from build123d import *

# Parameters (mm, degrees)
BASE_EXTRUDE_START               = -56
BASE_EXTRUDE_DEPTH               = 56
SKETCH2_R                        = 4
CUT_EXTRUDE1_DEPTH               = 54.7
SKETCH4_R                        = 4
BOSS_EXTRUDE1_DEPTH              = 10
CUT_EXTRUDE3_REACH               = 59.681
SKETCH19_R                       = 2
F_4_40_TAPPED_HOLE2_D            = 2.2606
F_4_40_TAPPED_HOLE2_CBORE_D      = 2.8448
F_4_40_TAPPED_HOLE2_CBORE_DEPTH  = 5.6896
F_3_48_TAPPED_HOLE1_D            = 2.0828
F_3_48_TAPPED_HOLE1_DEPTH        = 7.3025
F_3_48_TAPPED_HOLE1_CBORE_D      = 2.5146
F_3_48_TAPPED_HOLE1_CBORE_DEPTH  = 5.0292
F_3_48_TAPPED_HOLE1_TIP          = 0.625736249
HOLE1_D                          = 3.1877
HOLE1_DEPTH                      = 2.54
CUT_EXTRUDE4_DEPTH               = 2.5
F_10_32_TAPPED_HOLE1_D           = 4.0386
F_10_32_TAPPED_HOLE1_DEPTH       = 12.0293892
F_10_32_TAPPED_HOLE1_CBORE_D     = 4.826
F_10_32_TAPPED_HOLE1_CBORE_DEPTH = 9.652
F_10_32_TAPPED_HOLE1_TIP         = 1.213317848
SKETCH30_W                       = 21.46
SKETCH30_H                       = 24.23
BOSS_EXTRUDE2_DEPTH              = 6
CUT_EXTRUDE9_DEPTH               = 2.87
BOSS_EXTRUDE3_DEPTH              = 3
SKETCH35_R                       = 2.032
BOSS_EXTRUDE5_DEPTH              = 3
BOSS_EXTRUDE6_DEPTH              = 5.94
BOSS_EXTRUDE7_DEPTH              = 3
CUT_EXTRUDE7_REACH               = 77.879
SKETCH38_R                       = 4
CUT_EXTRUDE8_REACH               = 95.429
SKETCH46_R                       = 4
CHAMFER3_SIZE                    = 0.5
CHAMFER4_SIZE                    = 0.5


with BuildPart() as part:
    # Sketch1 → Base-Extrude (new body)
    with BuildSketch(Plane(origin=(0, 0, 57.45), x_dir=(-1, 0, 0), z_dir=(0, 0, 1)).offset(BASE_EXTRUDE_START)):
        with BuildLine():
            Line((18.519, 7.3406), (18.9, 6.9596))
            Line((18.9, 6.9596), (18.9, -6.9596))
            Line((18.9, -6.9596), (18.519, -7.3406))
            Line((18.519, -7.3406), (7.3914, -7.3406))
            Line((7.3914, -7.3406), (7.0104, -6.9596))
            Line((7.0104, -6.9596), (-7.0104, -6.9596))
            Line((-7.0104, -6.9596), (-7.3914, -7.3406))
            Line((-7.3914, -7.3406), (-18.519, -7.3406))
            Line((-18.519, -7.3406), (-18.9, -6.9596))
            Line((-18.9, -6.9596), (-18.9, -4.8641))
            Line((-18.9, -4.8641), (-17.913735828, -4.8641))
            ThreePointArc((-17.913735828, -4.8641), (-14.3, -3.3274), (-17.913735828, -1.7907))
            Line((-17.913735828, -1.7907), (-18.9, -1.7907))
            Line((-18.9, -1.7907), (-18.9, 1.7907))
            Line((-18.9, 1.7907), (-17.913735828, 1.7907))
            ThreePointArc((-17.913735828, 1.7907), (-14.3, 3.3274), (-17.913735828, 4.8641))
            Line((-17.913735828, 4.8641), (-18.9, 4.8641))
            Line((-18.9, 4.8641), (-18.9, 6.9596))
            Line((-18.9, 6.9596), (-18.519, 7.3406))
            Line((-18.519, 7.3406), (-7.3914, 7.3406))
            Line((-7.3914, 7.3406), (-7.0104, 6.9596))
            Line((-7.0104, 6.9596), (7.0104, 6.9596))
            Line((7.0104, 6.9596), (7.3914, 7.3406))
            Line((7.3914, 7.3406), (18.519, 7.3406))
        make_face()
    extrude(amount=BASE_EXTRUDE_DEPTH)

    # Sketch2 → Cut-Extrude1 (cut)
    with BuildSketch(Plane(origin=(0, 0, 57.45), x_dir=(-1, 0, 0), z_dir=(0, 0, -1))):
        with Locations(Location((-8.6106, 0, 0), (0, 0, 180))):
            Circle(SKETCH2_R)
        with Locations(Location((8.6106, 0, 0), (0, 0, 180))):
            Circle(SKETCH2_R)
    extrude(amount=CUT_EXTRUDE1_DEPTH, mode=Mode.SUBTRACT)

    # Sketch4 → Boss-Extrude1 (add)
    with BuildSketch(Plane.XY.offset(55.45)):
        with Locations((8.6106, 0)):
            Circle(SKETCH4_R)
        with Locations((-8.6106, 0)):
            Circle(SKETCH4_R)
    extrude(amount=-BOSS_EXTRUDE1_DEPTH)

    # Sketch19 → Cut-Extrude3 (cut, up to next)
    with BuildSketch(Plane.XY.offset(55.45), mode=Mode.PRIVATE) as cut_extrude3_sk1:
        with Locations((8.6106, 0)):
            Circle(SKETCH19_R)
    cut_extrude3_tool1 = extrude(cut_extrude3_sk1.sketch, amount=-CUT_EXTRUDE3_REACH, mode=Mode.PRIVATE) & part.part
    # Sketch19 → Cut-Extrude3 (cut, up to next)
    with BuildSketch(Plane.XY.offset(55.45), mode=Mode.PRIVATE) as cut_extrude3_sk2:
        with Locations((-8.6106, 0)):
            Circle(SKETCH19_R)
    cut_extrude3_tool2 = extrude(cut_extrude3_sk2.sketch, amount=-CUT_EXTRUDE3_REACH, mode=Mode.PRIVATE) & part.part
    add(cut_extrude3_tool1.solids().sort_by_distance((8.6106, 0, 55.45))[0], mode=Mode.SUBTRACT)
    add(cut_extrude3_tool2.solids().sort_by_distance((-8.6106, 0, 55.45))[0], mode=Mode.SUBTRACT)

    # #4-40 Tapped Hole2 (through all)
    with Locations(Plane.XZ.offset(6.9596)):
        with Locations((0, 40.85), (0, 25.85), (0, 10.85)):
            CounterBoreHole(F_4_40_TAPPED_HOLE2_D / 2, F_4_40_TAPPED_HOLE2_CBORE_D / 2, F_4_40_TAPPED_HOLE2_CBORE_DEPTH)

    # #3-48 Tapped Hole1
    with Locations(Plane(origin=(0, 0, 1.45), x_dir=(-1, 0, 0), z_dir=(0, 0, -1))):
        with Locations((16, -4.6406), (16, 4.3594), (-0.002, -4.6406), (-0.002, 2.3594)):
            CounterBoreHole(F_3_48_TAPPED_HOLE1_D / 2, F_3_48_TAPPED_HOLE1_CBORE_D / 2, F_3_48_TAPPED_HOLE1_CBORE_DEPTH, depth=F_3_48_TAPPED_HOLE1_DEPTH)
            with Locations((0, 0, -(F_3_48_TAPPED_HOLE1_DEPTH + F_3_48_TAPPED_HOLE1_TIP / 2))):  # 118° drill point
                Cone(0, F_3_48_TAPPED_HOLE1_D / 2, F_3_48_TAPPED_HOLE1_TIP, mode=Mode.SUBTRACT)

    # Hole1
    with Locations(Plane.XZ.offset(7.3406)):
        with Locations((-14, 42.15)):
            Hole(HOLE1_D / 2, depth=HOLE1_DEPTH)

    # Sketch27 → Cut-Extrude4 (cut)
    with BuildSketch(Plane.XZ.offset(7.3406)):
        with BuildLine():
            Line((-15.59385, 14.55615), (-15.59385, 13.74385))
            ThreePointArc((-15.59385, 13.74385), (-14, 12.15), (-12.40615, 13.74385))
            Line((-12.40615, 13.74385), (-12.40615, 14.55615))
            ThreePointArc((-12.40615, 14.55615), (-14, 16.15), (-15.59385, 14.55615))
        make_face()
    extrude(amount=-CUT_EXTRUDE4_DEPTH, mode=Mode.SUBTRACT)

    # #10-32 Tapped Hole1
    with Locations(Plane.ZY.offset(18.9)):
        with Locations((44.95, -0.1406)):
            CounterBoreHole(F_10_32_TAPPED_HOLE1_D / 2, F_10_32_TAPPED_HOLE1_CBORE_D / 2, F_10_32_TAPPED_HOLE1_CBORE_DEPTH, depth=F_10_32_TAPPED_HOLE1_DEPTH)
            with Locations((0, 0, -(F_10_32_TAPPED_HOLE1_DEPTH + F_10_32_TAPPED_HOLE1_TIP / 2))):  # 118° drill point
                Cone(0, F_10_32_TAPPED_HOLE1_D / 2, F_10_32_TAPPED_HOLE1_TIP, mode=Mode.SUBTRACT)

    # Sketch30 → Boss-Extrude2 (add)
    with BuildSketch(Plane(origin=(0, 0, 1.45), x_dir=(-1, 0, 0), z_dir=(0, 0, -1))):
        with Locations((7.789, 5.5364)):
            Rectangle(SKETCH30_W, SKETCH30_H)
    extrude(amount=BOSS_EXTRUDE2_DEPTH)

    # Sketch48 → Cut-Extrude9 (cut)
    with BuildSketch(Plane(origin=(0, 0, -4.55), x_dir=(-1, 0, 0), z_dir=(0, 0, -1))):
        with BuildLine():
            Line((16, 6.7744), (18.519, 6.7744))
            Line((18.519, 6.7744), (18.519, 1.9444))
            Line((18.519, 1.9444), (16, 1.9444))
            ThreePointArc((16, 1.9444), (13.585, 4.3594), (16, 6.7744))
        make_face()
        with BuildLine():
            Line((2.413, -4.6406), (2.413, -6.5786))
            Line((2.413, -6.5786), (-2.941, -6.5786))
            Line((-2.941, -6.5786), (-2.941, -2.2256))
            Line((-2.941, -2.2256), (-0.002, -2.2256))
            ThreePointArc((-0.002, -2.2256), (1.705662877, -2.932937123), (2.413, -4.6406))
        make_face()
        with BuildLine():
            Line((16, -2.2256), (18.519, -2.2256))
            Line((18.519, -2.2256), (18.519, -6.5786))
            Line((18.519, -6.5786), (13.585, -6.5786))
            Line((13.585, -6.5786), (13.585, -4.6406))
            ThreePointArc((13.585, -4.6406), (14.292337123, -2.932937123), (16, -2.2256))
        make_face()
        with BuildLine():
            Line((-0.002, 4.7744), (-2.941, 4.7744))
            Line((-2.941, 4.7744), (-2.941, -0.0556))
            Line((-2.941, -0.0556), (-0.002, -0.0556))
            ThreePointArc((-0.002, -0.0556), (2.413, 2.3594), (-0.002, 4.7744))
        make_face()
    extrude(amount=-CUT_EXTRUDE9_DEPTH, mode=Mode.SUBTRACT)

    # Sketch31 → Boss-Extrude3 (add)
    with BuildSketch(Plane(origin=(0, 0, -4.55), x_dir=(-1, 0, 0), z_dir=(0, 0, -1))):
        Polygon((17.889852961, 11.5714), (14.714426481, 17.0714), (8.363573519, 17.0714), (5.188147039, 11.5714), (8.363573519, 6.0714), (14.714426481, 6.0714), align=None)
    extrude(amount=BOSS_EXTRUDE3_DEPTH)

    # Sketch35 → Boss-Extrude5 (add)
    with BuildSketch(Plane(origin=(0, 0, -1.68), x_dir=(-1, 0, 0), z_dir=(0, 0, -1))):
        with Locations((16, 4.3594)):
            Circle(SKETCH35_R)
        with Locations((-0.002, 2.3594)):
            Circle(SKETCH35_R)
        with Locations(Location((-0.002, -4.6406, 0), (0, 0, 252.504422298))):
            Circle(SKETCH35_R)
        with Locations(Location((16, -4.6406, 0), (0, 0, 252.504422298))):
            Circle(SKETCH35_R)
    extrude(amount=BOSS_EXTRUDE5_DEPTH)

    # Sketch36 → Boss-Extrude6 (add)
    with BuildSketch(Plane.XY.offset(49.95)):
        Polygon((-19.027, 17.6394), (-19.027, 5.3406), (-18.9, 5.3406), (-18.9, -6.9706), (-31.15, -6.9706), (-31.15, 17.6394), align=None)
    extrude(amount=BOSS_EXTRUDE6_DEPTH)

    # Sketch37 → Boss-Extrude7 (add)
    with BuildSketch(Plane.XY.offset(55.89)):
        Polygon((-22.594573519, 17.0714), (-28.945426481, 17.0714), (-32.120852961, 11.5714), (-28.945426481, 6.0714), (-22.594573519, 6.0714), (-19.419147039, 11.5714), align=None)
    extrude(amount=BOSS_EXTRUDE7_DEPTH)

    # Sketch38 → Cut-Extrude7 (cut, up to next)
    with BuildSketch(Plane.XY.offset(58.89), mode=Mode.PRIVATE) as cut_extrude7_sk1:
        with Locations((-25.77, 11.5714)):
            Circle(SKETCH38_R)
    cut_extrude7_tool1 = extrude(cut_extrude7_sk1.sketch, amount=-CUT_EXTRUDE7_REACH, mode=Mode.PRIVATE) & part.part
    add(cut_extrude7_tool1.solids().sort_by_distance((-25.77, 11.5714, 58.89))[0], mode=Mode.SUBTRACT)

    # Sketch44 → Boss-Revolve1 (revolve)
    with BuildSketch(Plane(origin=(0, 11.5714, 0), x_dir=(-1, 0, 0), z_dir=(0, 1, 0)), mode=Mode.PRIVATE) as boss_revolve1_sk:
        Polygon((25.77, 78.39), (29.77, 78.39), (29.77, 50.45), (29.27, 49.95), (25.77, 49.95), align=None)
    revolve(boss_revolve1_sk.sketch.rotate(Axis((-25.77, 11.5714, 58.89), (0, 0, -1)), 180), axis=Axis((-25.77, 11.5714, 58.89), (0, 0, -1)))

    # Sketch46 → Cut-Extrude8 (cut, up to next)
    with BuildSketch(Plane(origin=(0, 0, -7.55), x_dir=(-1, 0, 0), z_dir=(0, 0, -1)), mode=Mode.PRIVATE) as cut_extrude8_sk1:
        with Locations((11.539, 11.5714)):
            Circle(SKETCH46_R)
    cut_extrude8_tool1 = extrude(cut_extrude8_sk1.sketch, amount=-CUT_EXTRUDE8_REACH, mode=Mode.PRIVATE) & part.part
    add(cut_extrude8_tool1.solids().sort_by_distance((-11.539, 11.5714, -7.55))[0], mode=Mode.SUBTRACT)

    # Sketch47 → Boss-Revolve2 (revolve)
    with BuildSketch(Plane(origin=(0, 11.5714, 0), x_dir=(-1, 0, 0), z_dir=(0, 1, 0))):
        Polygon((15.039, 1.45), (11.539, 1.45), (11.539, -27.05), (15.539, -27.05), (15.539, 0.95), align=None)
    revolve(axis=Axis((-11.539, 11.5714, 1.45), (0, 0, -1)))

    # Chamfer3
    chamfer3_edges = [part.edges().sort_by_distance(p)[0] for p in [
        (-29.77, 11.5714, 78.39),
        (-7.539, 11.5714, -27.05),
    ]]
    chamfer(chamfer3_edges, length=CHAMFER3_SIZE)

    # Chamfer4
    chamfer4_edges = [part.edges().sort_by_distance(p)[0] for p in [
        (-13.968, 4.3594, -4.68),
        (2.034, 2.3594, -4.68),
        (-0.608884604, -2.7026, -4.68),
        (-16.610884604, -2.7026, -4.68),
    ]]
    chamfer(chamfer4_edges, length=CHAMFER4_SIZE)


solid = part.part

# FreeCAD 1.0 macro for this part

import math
import FreeCAD as App
import Part
import Sketcher
Q = App.Units.Quantity


def edges_at(feature, points):
    """Names of the edges that pass closest to the given points."""
    edges = feature.Shape.Edges
    near = lambda p: min(range(len(edges)), key=lambda i: edges[i].distToShape(Part.Vertex(*p))[0])
    return sorted({f"Edge{near(p) + 1}" for p in points})


def add_polygon(sketch, points):
    """Adds a closed chain of lines whose ends are joined by coincident constraints."""
    first, n = sketch.GeometryCount, len(points)
    for a, b in zip(points, points[1:] + points[:1]):
        sketch.addGeometry(Part.LineSegment(App.Vector(*a, 0), App.Vector(*b, 0)), False)
    for i in range(n):
        sketch.addConstraint(Sketcher.Constraint("Coincident", first + i, 2, first + (i + 1) % n, 1))

doc = App.newDocument("Part")
body = doc.addObject("PartDesign::Body", "Body")

sketch1 = body.newObject("Sketcher::SketchObject", "Sketch")
sketch1.AttachmentSupport = (doc.getObject("XY_Plane"), [""])
sketch1.MapMode = "FlatFace"
sketch1.AttachmentOffset = App.Placement(App.Vector(0, 0, 1.45), App.Rotation())
sketch1.addGeometry([
    Part.LineSegment(App.Vector(-18.9, -7, 0), App.Vector(-18.5, -7.3, 0)),
    Part.LineSegment(App.Vector(-18.5, -7.3, 0), App.Vector(-7.4, -7.3, 0)),
    Part.LineSegment(App.Vector(-7.4, -7.3, 0), App.Vector(-7, -7, 0)),
    Part.LineSegment(App.Vector(-7, -7, 0), App.Vector(7, -7, 0)),
    Part.LineSegment(App.Vector(7, -7, 0), App.Vector(7.4, -7.3, 0)),
    Part.LineSegment(App.Vector(7.4, -7.3, 0), App.Vector(18.5, -7.3, 0)),
    Part.LineSegment(App.Vector(18.5, -7.3, 0), App.Vector(18.9, -7, 0)),
    Part.LineSegment(App.Vector(18.9, -7, 0), App.Vector(18.9, -4.9, 0)),
    Part.LineSegment(App.Vector(18.9, -4.9, 0), App.Vector(17.9, -4.9, 0)),
    Part.ArcOfCircle(Part.Circle(App.Vector(16.4, -3.3, 0), App.Vector(0, 0, 1), 2.1), math.radians(46), math.radians(314)),
    Part.LineSegment(App.Vector(17.9, -1.8, 0), App.Vector(18.9, -1.8, 0)),
    Part.LineSegment(App.Vector(18.9, -1.8, 0), App.Vector(18.9, 1.8, 0)),
    Part.LineSegment(App.Vector(18.9, 1.8, 0), App.Vector(17.9, 1.8, 0)),
    Part.ArcOfCircle(Part.Circle(App.Vector(16.4, 3.3, 0), App.Vector(0, 0, 1), 2.1), math.radians(46), math.radians(314)),
    Part.LineSegment(App.Vector(17.9, 4.9, 0), App.Vector(18.9, 4.9, 0)),
    Part.LineSegment(App.Vector(18.9, 4.9, 0), App.Vector(18.9, 7, 0)),
    Part.LineSegment(App.Vector(18.9, 7, 0), App.Vector(18.5, 7.3, 0)),
    Part.LineSegment(App.Vector(18.5, 7.3, 0), App.Vector(7.4, 7.3, 0)),
    Part.LineSegment(App.Vector(7.4, 7.3, 0), App.Vector(7, 7, 0)),
    Part.LineSegment(App.Vector(7, 7, 0), App.Vector(-7, 7, 0)),
    Part.LineSegment(App.Vector(-7, 7, 0), App.Vector(-7.4, 7.3, 0)),
    Part.LineSegment(App.Vector(-7.4, 7.3, 0), App.Vector(-18.5, 7.3, 0)),
    Part.LineSegment(App.Vector(-18.5, 7.3, 0), App.Vector(-18.9, 7, 0)),
    Part.LineSegment(App.Vector(-18.9, 7, 0), App.Vector(-18.9, -7, 0)),
], False)
sketch1.addConstraint([
    Sketcher.Constraint("Coincident", 0, 2, 1, 1),
    Sketcher.Constraint("Coincident", 1, 2, 2, 1),
    Sketcher.Constraint("Coincident", 2, 2, 3, 1),
    Sketcher.Constraint("Coincident", 3, 2, 4, 1),
    Sketcher.Constraint("Coincident", 4, 2, 5, 1),
    Sketcher.Constraint("Coincident", 5, 2, 6, 1),
    Sketcher.Constraint("Coincident", 6, 2, 7, 1),
    Sketcher.Constraint("Coincident", 7, 2, 8, 1),
    Sketcher.Constraint("Coincident", 8, 2, 9, 2),
    Sketcher.Constraint("Coincident", 9, 1, 10, 1),
    Sketcher.Constraint("Coincident", 10, 2, 11, 1),
    Sketcher.Constraint("Coincident", 11, 2, 12, 1),
    Sketcher.Constraint("Coincident", 12, 2, 13, 2),
    Sketcher.Constraint("Coincident", 13, 1, 14, 1),
    Sketcher.Constraint("Coincident", 14, 2, 15, 1),
    Sketcher.Constraint("Coincident", 15, 2, 16, 1),
    Sketcher.Constraint("Coincident", 16, 2, 17, 1),
    Sketcher.Constraint("Coincident", 17, 2, 18, 1),
    Sketcher.Constraint("Coincident", 18, 2, 19, 1),
    Sketcher.Constraint("Coincident", 19, 2, 20, 1),
    Sketcher.Constraint("Coincident", 20, 2, 21, 1),
    Sketcher.Constraint("Coincident", 21, 2, 22, 1),
    Sketcher.Constraint("Coincident", 22, 2, 23, 1),
    Sketcher.Constraint("Coincident", 23, 2, 0, 1),
    Sketcher.Constraint("Horizontal", 1),
    Sketcher.Constraint("Horizontal", 3),
    Sketcher.Constraint("Horizontal", 5),
    Sketcher.Constraint("Vertical", 7),
    Sketcher.Constraint("Horizontal", 8),
    Sketcher.Constraint("Horizontal", 10),
    Sketcher.Constraint("Vertical", 11),
    Sketcher.Constraint("Horizontal", 12),
    Sketcher.Constraint("Horizontal", 14),
    Sketcher.Constraint("Vertical", 15),
    Sketcher.Constraint("Horizontal", 17),
    Sketcher.Constraint("Horizontal", 19),
    Sketcher.Constraint("Horizontal", 21),
    Sketcher.Constraint("Vertical", 23),
    Sketcher.Constraint("Equal", 9, 13),
    Sketcher.Constraint("Symmetric", 0, 2, 16, 2, -1, 1),
    Sketcher.Constraint("Symmetric", 2, 2, 18, 2, -1, 1),
    Sketcher.Constraint("Symmetric", 4, 2, 20, 2, -1, 1),
    Sketcher.Constraint("Symmetric", 6, 2, 22, 2, -1, 1),
    Sketcher.Constraint("Symmetric", 15, 2, 23, 2, -1, 1),
    Sketcher.Constraint("Symmetric", 1, 2, 4, 2, -2),
    Sketcher.Constraint("Symmetric", 9, 3, 13, 3, -1),
    Sketcher.Constraint("Perpendicular", 0, 2),
    Sketcher.Constraint("Perpendicular", 2, 4),
    Sketcher.Constraint("Perpendicular", 4, 6),
    Sketcher.Constraint("Perpendicular", 16, 18),
    Sketcher.Constraint("Perpendicular", 18, 20),
    Sketcher.Constraint("Perpendicular", 20, 22),
    Sketcher.Constraint("Horizontal", 3, 2, 6, 2),
    Sketcher.Constraint("Horizontal", 15, 2, 18, 2),
    Sketcher.Constraint("Vertical", 8, 2, 9, 1),
    Sketcher.Constraint("Vertical", 7, 2, 10, 2),
    Sketcher.Constraint("Vertical", 9, 1, 12, 2),
    Sketcher.Constraint("Vertical", 12, 2, 13, 1),
    Sketcher.Constraint("Vertical", 5, 2, 16, 2),
    Sketcher.Constraint("DistanceX", -1, 1, 6, 2, 18.9),
    Sketcher.Constraint("Radius", 9, 2.1336),
    Sketcher.Constraint("DistanceX", 1, 1, 1, 2, 11.1276),
    Sketcher.Constraint("DistanceX", 3, 1, 3, 2, 14.0208),
    Sketcher.Constraint("DistanceY", 7, 1, 7, 2, 2.0955),
    Sketcher.Constraint("DistanceY", 11, 1, 11, 2, 3.5814),
    Sketcher.Constraint("DistanceY", 23, 2, 23, 1, 13.9192),
    Sketcher.Constraint("DistanceX", 1, 2, 9, 3, 23.825),
])
pad1 = body.newObject("PartDesign::Pad", "Pad")
pad1.Profile = sketch1
pad1.Length = 56

sketch2 = body.newObject("Sketcher::SketchObject", "Sketch001")
sketch2.AttachmentSupport = (doc.getObject("XY_Plane"), [""])
sketch2.MapMode = "FlatFace"
sketch2.AttachmentOffset = App.Placement(App.Vector(0, 0, 57.45), App.Rotation())
sketch2.addGeometry([
    Part.Circle(App.Vector(8.6, 0, 0), App.Vector(0, 0, 1), 4),
    Part.Circle(App.Vector(-8.6, 0, 0), App.Vector(0, 0, 1), 4),
], False)
sketch2.addConstraint([
    Sketcher.Constraint("Equal", 0, 1),
    Sketcher.Constraint("Symmetric", 0, 3, 1, 3, -1, 1),
    Sketcher.Constraint("PointOnObject", 0, 3, -1),
    Sketcher.Constraint("Diameter", 0, 8.0),
    Sketcher.Constraint("DistanceX", -1, 1, 0, 3, 8.6106),
])
pocket1 = body.newObject("PartDesign::Pocket", "Pocket")
pocket1.Profile = sketch2
pocket1.Length = 54.7

sketch3 = body.newObject("Sketcher::SketchObject", "Sketch002")
sketch3.AttachmentSupport = (doc.getObject("XY_Plane"), [""])
sketch3.MapMode = "FlatFace"
sketch3.AttachmentOffset = App.Placement(App.Vector(0, 0, 55.45), App.Rotation())
sketch3.addGeometry([
    Part.Circle(App.Vector(8.6, 0, 0), App.Vector(0, 0, 1), 4),
    Part.Circle(App.Vector(-8.6, 0, 0), App.Vector(0, 0, 1), 4),
], False)
sketch3.addConstraint([
    Sketcher.Constraint("Equal", 0, 1),
    Sketcher.Constraint("Symmetric", 0, 3, 1, 3, -1, 1),
    Sketcher.Constraint("PointOnObject", 0, 3, -1),
    Sketcher.Constraint("Diameter", 0, 8.0),
    Sketcher.Constraint("DistanceX", -1, 1, 0, 3, 8.6106),
])
pad2 = body.newObject("PartDesign::Pad", "Pad001")
pad2.Profile = sketch3
pad2.Length = 10
pad2.Reversed = True

sketch4 = body.newObject("Sketcher::SketchObject", "Sketch003")
sketch4.AttachmentSupport = (doc.getObject("XY_Plane"), [""])
sketch4.MapMode = "FlatFace"
sketch4.AttachmentOffset = App.Placement(App.Vector(0, 0, 55.45), App.Rotation())
sketch4.addGeometry(Part.Circle(App.Vector(8.6, 0, 0), App.Vector(0, 0, 1), 2), False)
sketch4.addConstraint([
    Sketcher.Constraint("PointOnObject", 0, 3, -1),
    Sketcher.Constraint("Diameter", 0, 4.0),
    Sketcher.Constraint("DistanceX", -1, 1, 0, 3, 8.6106),
])
pocket2 = body.newObject("PartDesign::Pocket", "Pocket001")
pocket2.Profile = sketch4
pocket2.Type = "UpToFirst"

sketch5 = body.newObject("Sketcher::SketchObject", "Sketch004")
sketch5.AttachmentSupport = (doc.getObject("XY_Plane"), [""])
sketch5.MapMode = "FlatFace"
sketch5.AttachmentOffset = App.Placement(App.Vector(0, 0, 55.45), App.Rotation())
sketch5.addGeometry(Part.Circle(App.Vector(-8.6, 0, 0), App.Vector(0, 0, 1), 2), False)
sketch5.addConstraint([
    Sketcher.Constraint("PointOnObject", 0, 3, -1),
    Sketcher.Constraint("Diameter", 0, 4.0),
    Sketcher.Constraint("DistanceX", 0, 3, -1, 1, 8.6106),
])
pocket3 = body.newObject("PartDesign::Pocket", "Pocket002")
pocket3.Profile = sketch5
pocket3.Type = "UpToFirst"

sketch6 = body.newObject("Sketcher::SketchObject", "Sketch005")
sketch6.AttachmentSupport = (doc.getObject("XZ_Plane"), [""])
sketch6.MapMode = "FlatFace"
sketch6.AttachmentOffset = App.Placement(App.Vector(0, 0, 6.9596), App.Rotation())
sketch6.addGeometry([
    Part.Circle(App.Vector(0, 40.9, 0), App.Vector(0, 0, 1), 1.1),
    Part.Circle(App.Vector(0, 25.9, 0), App.Vector(0, 0, 1), 1.1),
    Part.Circle(App.Vector(0, 10.8, 0), App.Vector(0, 0, 1), 1.1),
], False)
sketch6.addConstraint([
    Sketcher.Constraint("Equal", 0, 1),
    Sketcher.Constraint("Equal", 1, 2),
    Sketcher.Constraint("PointOnObject", 0, 3, -2),
    Sketcher.Constraint("PointOnObject", 1, 3, -2),
    Sketcher.Constraint("PointOnObject", 2, 3, -2),
    Sketcher.Constraint("DistanceY", 1, 3, 0, 3, 15.0),
    Sketcher.Constraint("DistanceY", 2, 3, 1, 3, 15.0),
    Sketcher.Constraint("Diameter", 0, 2.2606),
    Sketcher.Constraint("DistanceY", -1, 1, 0, 3, 40.85),
])
doc.recompute()
hole = body.newObject("PartDesign::Hole", "Hole")
hole.Profile = sketch6
hole.ThreadType = "None"
hole.Diameter = 2.2606
hole.DepthType = "ThroughAll"
hole.HoleCutType = "Counterbore"
hole.HoleCutDiameter = 2.8448
hole.HoleCutDepth = 5.6896

sketch7 = body.newObject("Sketcher::SketchObject", "Sketch006")
sketch7.AttachmentSupport = (doc.getObject("XY_Plane"), [""])
sketch7.MapMode = "FlatFace"
sketch7.AttachmentOffset = App.Placement(App.Vector(0, 0, 1.45), App.Rotation())
sketch7.addGeometry([
    Part.Circle(App.Vector(-16, -4.6, 0), App.Vector(0, 0, 1), 1),
    Part.Circle(App.Vector(-16, 4.4, 0), App.Vector(0, 0, 1), 1),
    Part.Circle(App.Vector(0, -4.6, 0), App.Vector(0, 0, 1), 1),
    Part.Circle(App.Vector(0, 2.4, 0), App.Vector(0, 0, 1), 1),
], False)
sketch7.addConstraint([
    Sketcher.Constraint("Equal", 0, 1),
    Sketcher.Constraint("Equal", 1, 2),
    Sketcher.Constraint("Equal", 2, 3),
    Sketcher.Constraint("Horizontal", 0, 3, 2, 3),
    Sketcher.Constraint("Vertical", 0, 3, 1, 3),
    Sketcher.Constraint("Vertical", 2, 3, 3, 3),
    Sketcher.Constraint("DistanceX", 0, 3, -1, 1, 16.0),
    Sketcher.Constraint("DistanceY", 0, 3, 1, 3, 9.0),
    Sketcher.Constraint("DistanceY", 2, 3, 3, 3, 7.0),
    Sketcher.Constraint("Diameter", 0, 2.0828),
    Sketcher.Constraint("DistanceX", -1, 1, 2, 3, 0.002),
    Sketcher.Constraint("DistanceY", 0, 3, -1, 1, 4.6406),
])
doc.recompute()
hole2 = body.newObject("PartDesign::Hole", "Hole001")
hole2.Profile = sketch7
hole2.ThreadType = "None"
hole2.Diameter = 2.0828
hole2.DepthType = "Dimension"
hole2.Depth = 7.3025
hole2.DrillPoint = "Angled"
hole2.DrillPointAngle = 118
hole2.HoleCutType = "Counterbore"
hole2.HoleCutDiameter = 2.5146
hole2.HoleCutDepth = 5.0292
hole2.Reversed = True

sketch8 = body.newObject("Sketcher::SketchObject", "Sketch007")
sketch8.AttachmentSupport = (doc.getObject("XZ_Plane"), [""])
sketch8.MapMode = "FlatFace"
sketch8.AttachmentOffset = App.Placement(App.Vector(0, 0, 7.3406), App.Rotation())
sketch8.addGeometry(Part.Circle(App.Vector(-14, 42.1, 0), App.Vector(0, 0, 1), 1.6), False)
sketch8.addConstraint([
    Sketcher.Constraint("DistanceX", 0, 3, -1, 1, 14.0),
    Sketcher.Constraint("Diameter", 0, 3.1877),
    Sketcher.Constraint("DistanceY", -1, 1, 0, 3, 42.15),
])
doc.recompute()
hole3 = body.newObject("PartDesign::Hole", "Hole002")
hole3.Profile = sketch8
hole3.ThreadType = "None"
hole3.Diameter = 3.1877
hole3.DepthType = "Dimension"
hole3.Depth = 2.54
hole3.DrillPoint = "Flat"

sketch9 = body.newObject("Sketcher::SketchObject", "Sketch008")
sketch9.AttachmentSupport = (doc.getObject("XZ_Plane"), [""])
sketch9.MapMode = "FlatFace"
sketch9.AttachmentOffset = App.Placement(App.Vector(0, 0, 7.3406), App.Rotation())
sketch9.addGeometry([
    Part.LineSegment(App.Vector(-15.6, 14.6, 0), App.Vector(-15.6, 13.7, 0)),
    Part.ArcOfCircle(Part.Circle(App.Vector(-14, 13.7, 0), App.Vector(0, 0, 1), 1.6), math.radians(180), math.radians(360)),
    Part.LineSegment(App.Vector(-12.4, 13.7, 0), App.Vector(-12.4, 14.6, 0)),
    Part.ArcOfCircle(Part.Circle(App.Vector(-14, 14.6, 0), App.Vector(0, 0, 1), 1.6), math.radians(0), math.radians(180)),
], False)
sketch9.addConstraint([
    Sketcher.Constraint("Tangent", 0, 2, 1, 1),
    Sketcher.Constraint("Tangent", 1, 2, 2, 1),
    Sketcher.Constraint("Tangent", 2, 2, 3, 1),
    Sketcher.Constraint("Tangent", 3, 2, 0, 1),
    Sketcher.Constraint("Vertical", 0),
    Sketcher.Constraint("Vertical", 2),
    Sketcher.Constraint("DistanceX", 1, 3, -1, 1, 14.0),
    Sketcher.Constraint("Radius", 1, 1.59385),
    Sketcher.Constraint("DistanceY", 0, 2, 0, 1, 0.8123),
    Sketcher.Constraint("DistanceY", -1, 1, 1, 3, 13.74385),
])
pocket4 = body.newObject("PartDesign::Pocket", "Pocket003")
pocket4.Profile = sketch9
pocket4.Length = 2.5

sketch10 = body.newObject("Sketcher::SketchObject", "Sketch009")
sketch10.AttachmentSupport = (doc.getObject("YZ_Plane"), [""])
sketch10.MapMode = "FlatFace"
sketch10.AttachmentOffset = App.Placement(App.Vector(0, 0, -18.9), App.Rotation())
sketch10.addGeometry(Part.Circle(App.Vector(-0.1, 45, 0), App.Vector(0, 0, 1), 2), False)
sketch10.addConstraint([
    Sketcher.Constraint("Diameter", 0, 4.0386),
    Sketcher.Constraint("DistanceY", -1, 1, 0, 3, 44.95),
    Sketcher.Constraint("DistanceX", 0, 3, -1, 1, 0.1406),
])
doc.recompute()
hole4 = body.newObject("PartDesign::Hole", "Hole003")
hole4.Profile = sketch10
hole4.ThreadType = "None"
hole4.Diameter = 4.0386
hole4.DepthType = "Dimension"
hole4.Depth = 12.029389
hole4.DrillPoint = "Angled"
hole4.DrillPointAngle = 118
hole4.HoleCutType = "Counterbore"
hole4.HoleCutDiameter = 4.826
hole4.HoleCutDepth = 9.652
hole4.Reversed = True

sketch11 = body.newObject("Sketcher::SketchObject", "Sketch010")
sketch11.AttachmentSupport = (doc.getObject("XY_Plane"), [""])
sketch11.MapMode = "FlatFace"
sketch11.AttachmentOffset = App.Placement(App.Vector(0, 0, 1.45), App.Rotation())
add_polygon(sketch11, [(3, 18), (3, -7), (-19, -7), (-19, 18)])
sketch11.addConstraint([
    Sketcher.Constraint("Vertical", 0),
    Sketcher.Constraint("Horizontal", 1),
    Sketcher.Constraint("Vertical", 2),
    Sketcher.Constraint("Horizontal", 3),
    Sketcher.Constraint("DistanceX", 1, 2, 1, 1, 21.46),
    Sketcher.Constraint("DistanceY", 0, 2, 0, 1, 24.23),
    Sketcher.Constraint("DistanceX", -1, 1, 0, 2, 2.941),
    Sketcher.Constraint("DistanceY", 0, 2, -1, 1, 6.5786),
])
pad3 = body.newObject("PartDesign::Pad", "Pad002")
pad3.Profile = sketch11
pad3.Length = 6
pad3.Reversed = True

sketch12 = body.newObject("Sketcher::SketchObject", "Sketch011")
sketch12.AttachmentSupport = (doc.getObject("XY_Plane"), [""])
sketch12.MapMode = "FlatFace"
sketch12.AttachmentOffset = App.Placement(App.Vector(0, 0, -4.55), App.Rotation())
sketch12.addGeometry([
    Part.LineSegment(App.Vector(-18.5, 6.8, 0), App.Vector(-16, 6.8, 0)),
    Part.ArcOfCircle(Part.Circle(App.Vector(-16, 4.4, 0), App.Vector(0, 0, 1), 2.4), math.radians(-90), math.radians(90)),
    Part.LineSegment(App.Vector(-16, 1.9, 0), App.Vector(-18.5, 1.9, 0)),
    Part.LineSegment(App.Vector(-18.5, 1.9, 0), App.Vector(-18.5, 6.8, 0)),
    Part.LineSegment(App.Vector(-2.4, -6.6, 0), App.Vector(-2.4, -4.6, 0)),
    Part.ArcOfCircle(Part.Circle(App.Vector(0, -4.6, 0), App.Vector(0, 0, 1), 2.4), math.radians(90), math.radians(180)),
    Part.LineSegment(App.Vector(0, -2.2, 0), App.Vector(2.9, -2.2, 0)),
    Part.LineSegment(App.Vector(2.9, -2.2, 0), App.Vector(2.9, -6.6, 0)),
    Part.LineSegment(App.Vector(2.9, -6.6, 0), App.Vector(-2.4, -6.6, 0)),
    Part.LineSegment(App.Vector(-18.5, -2.2, 0), App.Vector(-16, -2.2, 0)),
    Part.ArcOfCircle(Part.Circle(App.Vector(-16, -4.6, 0), App.Vector(0, 0, 1), 2.4), math.radians(0), math.radians(90)),
    Part.LineSegment(App.Vector(-13.6, -4.6, 0), App.Vector(-13.6, -6.6, 0)),
    Part.LineSegment(App.Vector(-13.6, -6.6, 0), App.Vector(-18.5, -6.6, 0)),
    Part.LineSegment(App.Vector(-18.5, -6.6, 0), App.Vector(-18.5, -2.2, 0)),
    Part.LineSegment(App.Vector(0, 4.8, 0), App.Vector(2.9, 4.8, 0)),
    Part.LineSegment(App.Vector(2.9, 4.8, 0), App.Vector(2.9, -0.1, 0)),
    Part.LineSegment(App.Vector(2.9, -0.1, 0), App.Vector(0, -0.1, 0)),
    Part.ArcOfCircle(Part.Circle(App.Vector(0, 2.4, 0), App.Vector(0, 0, 1), 2.4), math.radians(90), math.radians(270)),
], False)
sketch12.addConstraint([
    Sketcher.Constraint("Tangent", 0, 2, 1, 2),
    Sketcher.Constraint("Tangent", 1, 1, 2, 1),
    Sketcher.Constraint("Coincident", 2, 2, 3, 1),
    Sketcher.Constraint("Coincident", 3, 2, 0, 1),
    Sketcher.Constraint("Tangent", 4, 2, 5, 2),
    Sketcher.Constraint("Tangent", 5, 1, 6, 1),
    Sketcher.Constraint("Coincident", 6, 2, 7, 1),
    Sketcher.Constraint("Coincident", 7, 2, 8, 1),
    Sketcher.Constraint("Coincident", 8, 2, 4, 1),
    Sketcher.Constraint("Tangent", 9, 2, 10, 2),
    Sketcher.Constraint("Tangent", 10, 1, 11, 1),
    Sketcher.Constraint("Coincident", 11, 2, 12, 1),
    Sketcher.Constraint("Coincident", 12, 2, 13, 1),
    Sketcher.Constraint("Coincident", 13, 2, 9, 1),
    Sketcher.Constraint("Coincident", 14, 2, 15, 1),
    Sketcher.Constraint("Coincident", 15, 2, 16, 1),
    Sketcher.Constraint("Tangent", 16, 2, 17, 2),
    Sketcher.Constraint("Tangent", 17, 1, 14, 1),
    Sketcher.Constraint("Horizontal", 0),
    Sketcher.Constraint("Horizontal", 2),
    Sketcher.Constraint("Vertical", 3),
    Sketcher.Constraint("Vertical", 4),
    Sketcher.Constraint("Horizontal", 6),
    Sketcher.Constraint("Vertical", 7),
    Sketcher.Constraint("Horizontal", 8),
    Sketcher.Constraint("Horizontal", 9),
    Sketcher.Constraint("Vertical", 11),
    Sketcher.Constraint("Horizontal", 12),
    Sketcher.Constraint("Vertical", 13),
    Sketcher.Constraint("Horizontal", 14),
    Sketcher.Constraint("Vertical", 15),
    Sketcher.Constraint("Horizontal", 16),
    Sketcher.Constraint("Equal", 1, 5),
    Sketcher.Constraint("Equal", 5, 10),
    Sketcher.Constraint("Equal", 10, 17),
    Sketcher.Constraint("Horizontal", 5, 3, 10, 3),
    Sketcher.Constraint("Horizontal", 8, 2, 11, 2),
    Sketcher.Constraint("Vertical", 1, 3, 10, 3),
    Sketcher.Constraint("Vertical", 5, 3, 17, 3),
    Sketcher.Constraint("Vertical", 3, 2, 12, 2),
    Sketcher.Constraint("Vertical", 7, 2, 14, 2),
    Sketcher.Constraint("DistanceX", 1, 3, -1, 1, 16.0),
    Sketcher.Constraint("Radius", 1, 2.415),
    Sketcher.Constraint("DistanceY", 5, 3, 1, 3, 9.0),
    Sketcher.Constraint("DistanceY", 5, 3, 17, 3, 7.0),
    Sketcher.Constraint("DistanceX", 0, 1, 0, 2, 2.519),
    Sketcher.Constraint("DistanceX", 6, 1, 6, 2, 2.939),
    Sketcher.Constraint("DistanceY", 4, 1, 4, 2, 1.938),
    Sketcher.Constraint("DistanceX", -1, 1, 5, 3, 0.002),
    Sketcher.Constraint("DistanceY", -1, 1, 1, 3, 4.3594),
])
pocket5 = body.newObject("PartDesign::Pocket", "Pocket004")
pocket5.Profile = sketch12
pocket5.Length = 2.87
pocket5.Reversed = True

sketch13 = body.newObject("Sketcher::SketchObject", "Sketch012")
sketch13.AttachmentSupport = (doc.getObject("XY_Plane"), [""])
sketch13.MapMode = "FlatFace"
sketch13.AttachmentOffset = App.Placement(App.Vector(0, 0, -4.55), App.Rotation())
add_polygon(sketch13, [(-18, 12), (-15, 17), (-8, 17), (-5, 12), (-8, 6), (-15, 6)])
sketch13.addConstraint([
    Sketcher.Constraint("Horizontal", 1),
    Sketcher.Constraint("Horizontal", 4),
    Sketcher.Constraint("Parallel", 0, 3),
    Sketcher.Constraint("Parallel", 2, 5),
    Sketcher.Constraint("Horizontal", 2, 2, 5, 2),
    Sketcher.Constraint("Vertical", 1, 2, 3, 2),
    Sketcher.Constraint("Vertical", 0, 2, 4, 2),
    Sketcher.Constraint("Angle", 0, Q("60 deg")),
    Sketcher.Constraint("DistanceY", 3, 2, 1, 2, 11.0),
    Sketcher.Constraint("DistanceY", -1, 1, 0, 2, 17.0714),
    Sketcher.Constraint("DistanceX", 1, 1, 1, 2, 6.350853),
    Sketcher.Constraint("DistanceX", 0, 2, -1, 1, 14.714426),
])
pad4 = body.newObject("PartDesign::Pad", "Pad003")
pad4.Profile = sketch13
pad4.Length = 3
pad4.Reversed = True

sketch14 = body.newObject("Sketcher::SketchObject", "Sketch013")
sketch14.AttachmentSupport = (doc.getObject("XY_Plane"), [""])
sketch14.MapMode = "FlatFace"
sketch14.AttachmentOffset = App.Placement(App.Vector(0, 0, -1.68), App.Rotation())
sketch14.addGeometry([
    Part.Circle(App.Vector(-16, 4.4, 0), App.Vector(0, 0, 1), 2),
    Part.Circle(App.Vector(0, 2.4, 0), App.Vector(0, 0, 1), 2),
    Part.Circle(App.Vector(0, -4.6, 0), App.Vector(0, 0, 1), 2),
    Part.Circle(App.Vector(-16, -4.6, 0), App.Vector(0, 0, 1), 2),
], False)
sketch14.addConstraint([
    Sketcher.Constraint("Equal", 0, 1),
    Sketcher.Constraint("Equal", 1, 2),
    Sketcher.Constraint("Equal", 2, 3),
    Sketcher.Constraint("Horizontal", 2, 3, 3, 3),
    Sketcher.Constraint("Vertical", 1, 3, 2, 3),
    Sketcher.Constraint("Vertical", 0, 3, 3, 3),
    Sketcher.Constraint("Diameter", 0, 4.064),
    Sketcher.Constraint("DistanceX", 0, 3, -1, 1, 16.0),
    Sketcher.Constraint("DistanceY", 1, 3, 0, 3, 2.0),
    Sketcher.Constraint("DistanceY", 2, 3, 1, 3, 7.0),
    Sketcher.Constraint("DistanceX", -1, 1, 1, 3, 0.002),
    Sketcher.Constraint("DistanceY", -1, 1, 0, 3, 4.3594),
])
pad5 = body.newObject("PartDesign::Pad", "Pad004")
pad5.Profile = sketch14
pad5.Length = 3
pad5.Reversed = True

sketch15 = body.newObject("Sketcher::SketchObject", "Sketch014")
sketch15.AttachmentSupport = (doc.getObject("XY_Plane"), [""])
sketch15.MapMode = "FlatFace"
sketch15.AttachmentOffset = App.Placement(App.Vector(0, 0, 49.95), App.Rotation())
add_polygon(sketch15, [(-19.03, 5.34), (-19.03, 17.64), (-31.15, 17.64), (-31.15, -6.97), (-18.9, -6.97), (-18.9, 5.34)])
sketch15.addConstraint([
    Sketcher.Constraint("Vertical", 0),
    Sketcher.Constraint("Horizontal", 1),
    Sketcher.Constraint("Vertical", 2),
    Sketcher.Constraint("Horizontal", 3),
    Sketcher.Constraint("Vertical", 4),
    Sketcher.Constraint("Horizontal", 5),
    Sketcher.Constraint("DistanceX", 3, 1, 3, 2, 12.25),
    Sketcher.Constraint("DistanceY", 2, 2, 2, 1, 24.61),
    Sketcher.Constraint("DistanceX", 3, 2, -1, 1, 18.9),
    Sketcher.Constraint("DistanceX", 1, 2, 1, 1, 12.123),
    Sketcher.Constraint("DistanceY", 0, 1, 0, 2, 12.2988),
    Sketcher.Constraint("DistanceY", -1, 1, 0, 2, 17.6394),
])
pad6 = body.newObject("PartDesign::Pad", "Pad005")
pad6.Profile = sketch15
pad6.Length = 5.94

sketch16 = body.newObject("Sketcher::SketchObject", "Sketch015")
sketch16.AttachmentSupport = (doc.getObject("XY_Plane"), [""])
sketch16.MapMode = "FlatFace"
sketch16.AttachmentOffset = App.Placement(App.Vector(0, 0, 55.89), App.Rotation())
add_polygon(sketch16, [(-23, 17), (-29, 17), (-32, 12), (-29, 6), (-23, 6), (-19, 12)])
sketch16.addConstraint([
    Sketcher.Constraint("Horizontal", 0),
    Sketcher.Constraint("Horizontal", 3),
    Sketcher.Constraint("Parallel", 1, 4),
    Sketcher.Constraint("Parallel", 2, 5),
    Sketcher.Constraint("Horizontal", 1, 2, 4, 2),
    Sketcher.Constraint("Vertical", 0, 2, 2, 2),
    Sketcher.Constraint("Vertical", 3, 2, 5, 2),
    Sketcher.Constraint("Angle", 1, Q("-120 deg")),
    Sketcher.Constraint("DistanceY", 2, 2, 0, 2, 11.0),
    Sketcher.Constraint("DistanceY", -1, 1, 0, 2, 17.0714),
    Sketcher.Constraint("DistanceX", 0, 2, 0, 1, 6.350853),
    Sketcher.Constraint("DistanceX", 0, 2, -1, 1, 28.945426),
])
pad7 = body.newObject("PartDesign::Pad", "Pad006")
pad7.Profile = sketch16
pad7.Length = 3

sketch17 = body.newObject("Sketcher::SketchObject", "Sketch016")
sketch17.AttachmentSupport = (doc.getObject("XY_Plane"), [""])
sketch17.MapMode = "FlatFace"
sketch17.AttachmentOffset = App.Placement(App.Vector(0, 0, 58.89), App.Rotation())
sketch17.addGeometry(Part.Circle(App.Vector(-25.8, 11.6, 0), App.Vector(0, 0, 1), 4), False)
sketch17.addConstraint([
    Sketcher.Constraint("Diameter", 0, 8.0),
    Sketcher.Constraint("DistanceX", 0, 3, -1, 1, 25.77),
    Sketcher.Constraint("DistanceY", -1, 1, 0, 3, 11.5714),
])
pocket6 = body.newObject("PartDesign::Pocket", "Pocket005")
pocket6.Profile = sketch17
pocket6.Type = "UpToFirst"

sketch18 = body.newObject("Sketcher::SketchObject", "Sketch017")
sketch18.AttachmentSupport = (doc.getObject("XZ_Plane"), [""])
sketch18.MapMode = "FlatFace"
sketch18.AttachmentOffset = App.Placement(App.Vector(0, 0, -11.5714), App.Rotation())
add_polygon(sketch18, [(-29.8, 78.4), (-25.8, 78.4), (-25.8, 50), (-29.3, 50), (-29.8, 50.5)])
sketch18.addGeometry(Part.LineSegment(App.Vector(-25.8, 78.4, 0), App.Vector(-25.8, 50, 0)), True)
sketch18.addConstraint([
    Sketcher.Constraint("Horizontal", 0),
    Sketcher.Constraint("Vertical", 1),
    Sketcher.Constraint("Horizontal", 2),
    Sketcher.Constraint("Vertical", 4),
    Sketcher.Constraint("Vertical", 5),
    Sketcher.Constraint("Coincident", 5, 1, 0, 2),
    Sketcher.Constraint("Horizontal", 2, 2, 5, 2),
    Sketcher.Constraint("DistanceX", 0, 1, 0, 2, 4.0),
    Sketcher.Constraint("Angle", 3, Q("135 deg")),
    Sketcher.Constraint("DistanceX", 2, 2, 2, 1, 3.5),
    Sketcher.Constraint("DistanceY", 1, 2, 1, 1, 28.44),
    Sketcher.Constraint("DistanceX", 0, 2, -1, 1, 25.77),
    Sketcher.Constraint("DistanceY", -1, 1, 0, 2, 78.39),
])
revolution = body.newObject("PartDesign::Revolution", "Revolution")
revolution.Profile = sketch18
revolution.ReferenceAxis = (sketch18, ["Axis0"])
revolution.Angle = 360

sketch19 = body.newObject("Sketcher::SketchObject", "Sketch018")
sketch19.AttachmentSupport = (doc.getObject("XY_Plane"), [""])
sketch19.MapMode = "FlatFace"
sketch19.AttachmentOffset = App.Placement(App.Vector(0, 0, -7.55), App.Rotation())
sketch19.addGeometry(Part.Circle(App.Vector(-11.5, 11.6, 0), App.Vector(0, 0, 1), 4), False)
sketch19.addConstraint([
    Sketcher.Constraint("Diameter", 0, 8.0),
    Sketcher.Constraint("DistanceX", 0, 3, -1, 1, 11.539),
    Sketcher.Constraint("DistanceY", -1, 1, 0, 3, 11.5714),
])
pocket7 = body.newObject("PartDesign::Pocket", "Pocket006")
pocket7.Profile = sketch19
pocket7.Type = "UpToFirst"
pocket7.Reversed = True

sketch20 = body.newObject("Sketcher::SketchObject", "Sketch019")
sketch20.AttachmentSupport = (doc.getObject("XZ_Plane"), [""])
sketch20.MapMode = "FlatFace"
sketch20.AttachmentOffset = App.Placement(App.Vector(0, 0, -11.5714), App.Rotation())
add_polygon(sketch20, [(-15, 1.4), (-11.5, 1.4), (-11.5, -27.1), (-15.5, -27.1), (-15.5, 0.9)])
sketch20.addGeometry(Part.LineSegment(App.Vector(-11.5, 1.4, 0), App.Vector(-11.5, -27.1, 0)), True)
sketch20.addConstraint([
    Sketcher.Constraint("Horizontal", 0),
    Sketcher.Constraint("Vertical", 1),
    Sketcher.Constraint("Horizontal", 2),
    Sketcher.Constraint("Vertical", 3),
    Sketcher.Constraint("Vertical", 5),
    Sketcher.Constraint("Coincident", 5, 1, 0, 2),
    Sketcher.Constraint("Horizontal", 2, 2, 5, 2),
    Sketcher.Constraint("DistanceX", 2, 2, 2, 1, 4.0),
    Sketcher.Constraint("DistanceY", 3, 1, 3, 2, 28.0),
    Sketcher.Constraint("Angle", 4, Q("45 deg")),
    Sketcher.Constraint("DistanceX", 0, 1, 0, 2, 3.5),
    Sketcher.Constraint("DistanceY", -1, 1, 0, 2, 1.45),
    Sketcher.Constraint("DistanceX", 0, 2, -1, 1, 11.539),
])
revolution2 = body.newObject("PartDesign::Revolution", "Revolution001")
revolution2.Profile = sketch20
revolution2.ReferenceAxis = (sketch20, ["Axis0"])
revolution2.Angle = 360
doc.recompute()

chamfer = body.newObject("PartDesign::Chamfer", "Chamfer")
chamfer.Base = (revolution2, edges_at(revolution2, [(-29.77, 11.571, 78.39), (-7.539, 11.571, -27.05)]))
chamfer.Size = 0.5
doc.recompute()

chamfer2 = body.newObject("PartDesign::Chamfer", "Chamfer001")
chamfer2.Base = (chamfer, edges_at(chamfer, [
    (-13.968, 4.359, -4.68),
    (2.034, 2.359, -4.68),
    (-0.609, -2.703, -4.68),
    (-16.611, -2.703, -4.68),
]))
chamfer2.Size = 0.5

doc.recompute()
